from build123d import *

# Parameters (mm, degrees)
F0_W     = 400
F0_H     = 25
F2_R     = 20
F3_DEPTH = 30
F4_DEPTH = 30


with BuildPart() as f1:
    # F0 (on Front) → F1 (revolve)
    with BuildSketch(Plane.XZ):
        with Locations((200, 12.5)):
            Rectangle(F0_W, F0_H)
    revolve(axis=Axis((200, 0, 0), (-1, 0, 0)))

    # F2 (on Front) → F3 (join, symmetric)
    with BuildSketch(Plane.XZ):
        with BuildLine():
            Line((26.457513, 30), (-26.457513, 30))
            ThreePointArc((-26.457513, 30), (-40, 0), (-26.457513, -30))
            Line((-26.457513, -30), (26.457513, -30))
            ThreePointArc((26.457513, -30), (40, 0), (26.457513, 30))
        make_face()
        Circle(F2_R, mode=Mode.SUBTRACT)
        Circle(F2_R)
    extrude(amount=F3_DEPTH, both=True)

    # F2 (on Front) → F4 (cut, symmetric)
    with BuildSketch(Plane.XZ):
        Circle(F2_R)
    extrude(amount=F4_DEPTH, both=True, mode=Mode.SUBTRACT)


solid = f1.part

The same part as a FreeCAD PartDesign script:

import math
import FreeCAD as App
import Part
import Sketcher
from FreeCAD import Vector
Q = App.Units.Quantity


def add_polygon(sketch, points):
    """Adds a closed chain of lines whose ends are joined by coincident constraints."""
    first, n = sketch.GeometryCount, len(points)
    for a, b in zip(points, points[1:] + points[:1]):
        sketch.addGeometry(Part.LineSegment(App.Vector(*a, 0), App.Vector(*b, 0)), False)
    for i in range(n):
        sketch.addConstraint(Sketcher.Constraint("Coincident", first + i, 2, first + (i + 1) % n, 1))

doc = App.newDocument("Part")
body = doc.addObject("PartDesign::Body", "Body")

sketch1 = body.newObject("Sketcher::SketchObject", "Sketch")
sketch1.AttachmentSupport = (doc.getObject("XZ_Plane"), [""])
sketch1.MapMode = "FlatFace"
add_polygon(sketch1, [(0, 25), (0, 0), (400, 0), (400, 25)])
sketch1.addConstraint(Sketcher.Constraint("Vertical", 0))
sketch1.addConstraint(Sketcher.Constraint("Horizontal", 1))
sketch1.addConstraint(Sketcher.Constraint("Vertical", 2))
sketch1.addConstraint(Sketcher.Constraint("Horizontal", 3))
sketch1.addConstraint(Sketcher.Constraint("Coincident", 0, 2, -1, 1))
sketch1.addConstraint(Sketcher.Constraint("DistanceX", 1, 1, 1, 2, Q("400 mm")))
sketch1.addConstraint(Sketcher.Constraint("DistanceY", 0, 2, 0, 1, Q("25 mm")))
revolution = body.newObject("PartDesign::Revolution", "Revolution")
revolution.Profile = sketch1
revolution.ReferenceAxis = (sketch1, ["H_Axis"])
revolution.Angle = 360

sketch2 = body.newObject("Sketcher::SketchObject", "Sketch001")
sketch2.AttachmentSupport = (doc.getObject("XZ_Plane"), [""])
sketch2.MapMode = "FlatFace"
sketch2.addGeometry(Part.LineSegment(Vector(26, 30, 0), Vector(-26, 30, 0)), False)
sketch2.addGeometry(Part.ArcOfCircle(Part.Circle(Vector(0, 0, 0), Vector(0, 0, 1), 40), math.radians(131), math.radians(229)), False)
sketch2.addGeometry(Part.LineSegment(Vector(-26, -30, 0), Vector(26, -30, 0)), False)
sketch2.addGeometry(Part.ArcOfCircle(Part.Circle(Vector(0, 0, 0), Vector(0, 0, 1), 40), math.radians(-49), math.radians(49)), False)
sketch2.addConstraint(Sketcher.Constraint("Coincident", 0, 2, 1, 1))
sketch2.addConstraint(Sketcher.Constraint("Coincident", 1, 2, 2, 1))
sketch2.addConstraint(Sketcher.Constraint("Coincident", 2, 2, 3, 1))
sketch2.addConstraint(Sketcher.Constraint("Coincident", 3, 2, 0, 1))
sketch2.addConstraint(Sketcher.Constraint("Horizontal", 0))
sketch2.addConstraint(Sketcher.Constraint("Horizontal", 2))
sketch2.addConstraint(Sketcher.Constraint("Coincident", 1, 3, -1, 1))
sketch2.addConstraint(Sketcher.Constraint("Coincident", 3, 3, -1, 1))
sketch2.addConstraint(Sketcher.Constraint("Equal", 1, 3))
sketch2.addConstraint(Sketcher.Constraint("Vertical", 0, 2, 1, 2))
sketch2.addConstraint(Sketcher.Constraint("Radius", 1, Q("40 mm")))
sketch2.addConstraint(Sketcher.Constraint("DistanceY", -1, 1, 0, 2, Q("30 mm")))
pad1 = body.newObject("PartDesign::Pad", "Pad")
pad1.Profile = sketch2
pad1.Length = 60
pad1.Midplane = True

sketch3 = body.newObject("Sketcher::SketchObject", "Sketch002")
sketch3.AttachmentSupport = (doc.getObject("XZ_Plane"), [""])
sketch3.MapMode = "FlatFace"
sketch3.addGeometry(Part.Circle(Vector(0, 0, 0), Vector(0, 0, 1), 20), False)
sketch3.addConstraint(Sketcher.Constraint("Coincident", 0, 3, -1, 1))
sketch3.addConstraint(Sketcher.Constraint("Diameter", 0, Q("40 mm")))
pocket1 = body.newObject("PartDesign::Pocket", "Pocket")
pocket1.Profile = sketch3
pocket1.Length = 60
pocket1.Midplane = True

doc.recompute()
